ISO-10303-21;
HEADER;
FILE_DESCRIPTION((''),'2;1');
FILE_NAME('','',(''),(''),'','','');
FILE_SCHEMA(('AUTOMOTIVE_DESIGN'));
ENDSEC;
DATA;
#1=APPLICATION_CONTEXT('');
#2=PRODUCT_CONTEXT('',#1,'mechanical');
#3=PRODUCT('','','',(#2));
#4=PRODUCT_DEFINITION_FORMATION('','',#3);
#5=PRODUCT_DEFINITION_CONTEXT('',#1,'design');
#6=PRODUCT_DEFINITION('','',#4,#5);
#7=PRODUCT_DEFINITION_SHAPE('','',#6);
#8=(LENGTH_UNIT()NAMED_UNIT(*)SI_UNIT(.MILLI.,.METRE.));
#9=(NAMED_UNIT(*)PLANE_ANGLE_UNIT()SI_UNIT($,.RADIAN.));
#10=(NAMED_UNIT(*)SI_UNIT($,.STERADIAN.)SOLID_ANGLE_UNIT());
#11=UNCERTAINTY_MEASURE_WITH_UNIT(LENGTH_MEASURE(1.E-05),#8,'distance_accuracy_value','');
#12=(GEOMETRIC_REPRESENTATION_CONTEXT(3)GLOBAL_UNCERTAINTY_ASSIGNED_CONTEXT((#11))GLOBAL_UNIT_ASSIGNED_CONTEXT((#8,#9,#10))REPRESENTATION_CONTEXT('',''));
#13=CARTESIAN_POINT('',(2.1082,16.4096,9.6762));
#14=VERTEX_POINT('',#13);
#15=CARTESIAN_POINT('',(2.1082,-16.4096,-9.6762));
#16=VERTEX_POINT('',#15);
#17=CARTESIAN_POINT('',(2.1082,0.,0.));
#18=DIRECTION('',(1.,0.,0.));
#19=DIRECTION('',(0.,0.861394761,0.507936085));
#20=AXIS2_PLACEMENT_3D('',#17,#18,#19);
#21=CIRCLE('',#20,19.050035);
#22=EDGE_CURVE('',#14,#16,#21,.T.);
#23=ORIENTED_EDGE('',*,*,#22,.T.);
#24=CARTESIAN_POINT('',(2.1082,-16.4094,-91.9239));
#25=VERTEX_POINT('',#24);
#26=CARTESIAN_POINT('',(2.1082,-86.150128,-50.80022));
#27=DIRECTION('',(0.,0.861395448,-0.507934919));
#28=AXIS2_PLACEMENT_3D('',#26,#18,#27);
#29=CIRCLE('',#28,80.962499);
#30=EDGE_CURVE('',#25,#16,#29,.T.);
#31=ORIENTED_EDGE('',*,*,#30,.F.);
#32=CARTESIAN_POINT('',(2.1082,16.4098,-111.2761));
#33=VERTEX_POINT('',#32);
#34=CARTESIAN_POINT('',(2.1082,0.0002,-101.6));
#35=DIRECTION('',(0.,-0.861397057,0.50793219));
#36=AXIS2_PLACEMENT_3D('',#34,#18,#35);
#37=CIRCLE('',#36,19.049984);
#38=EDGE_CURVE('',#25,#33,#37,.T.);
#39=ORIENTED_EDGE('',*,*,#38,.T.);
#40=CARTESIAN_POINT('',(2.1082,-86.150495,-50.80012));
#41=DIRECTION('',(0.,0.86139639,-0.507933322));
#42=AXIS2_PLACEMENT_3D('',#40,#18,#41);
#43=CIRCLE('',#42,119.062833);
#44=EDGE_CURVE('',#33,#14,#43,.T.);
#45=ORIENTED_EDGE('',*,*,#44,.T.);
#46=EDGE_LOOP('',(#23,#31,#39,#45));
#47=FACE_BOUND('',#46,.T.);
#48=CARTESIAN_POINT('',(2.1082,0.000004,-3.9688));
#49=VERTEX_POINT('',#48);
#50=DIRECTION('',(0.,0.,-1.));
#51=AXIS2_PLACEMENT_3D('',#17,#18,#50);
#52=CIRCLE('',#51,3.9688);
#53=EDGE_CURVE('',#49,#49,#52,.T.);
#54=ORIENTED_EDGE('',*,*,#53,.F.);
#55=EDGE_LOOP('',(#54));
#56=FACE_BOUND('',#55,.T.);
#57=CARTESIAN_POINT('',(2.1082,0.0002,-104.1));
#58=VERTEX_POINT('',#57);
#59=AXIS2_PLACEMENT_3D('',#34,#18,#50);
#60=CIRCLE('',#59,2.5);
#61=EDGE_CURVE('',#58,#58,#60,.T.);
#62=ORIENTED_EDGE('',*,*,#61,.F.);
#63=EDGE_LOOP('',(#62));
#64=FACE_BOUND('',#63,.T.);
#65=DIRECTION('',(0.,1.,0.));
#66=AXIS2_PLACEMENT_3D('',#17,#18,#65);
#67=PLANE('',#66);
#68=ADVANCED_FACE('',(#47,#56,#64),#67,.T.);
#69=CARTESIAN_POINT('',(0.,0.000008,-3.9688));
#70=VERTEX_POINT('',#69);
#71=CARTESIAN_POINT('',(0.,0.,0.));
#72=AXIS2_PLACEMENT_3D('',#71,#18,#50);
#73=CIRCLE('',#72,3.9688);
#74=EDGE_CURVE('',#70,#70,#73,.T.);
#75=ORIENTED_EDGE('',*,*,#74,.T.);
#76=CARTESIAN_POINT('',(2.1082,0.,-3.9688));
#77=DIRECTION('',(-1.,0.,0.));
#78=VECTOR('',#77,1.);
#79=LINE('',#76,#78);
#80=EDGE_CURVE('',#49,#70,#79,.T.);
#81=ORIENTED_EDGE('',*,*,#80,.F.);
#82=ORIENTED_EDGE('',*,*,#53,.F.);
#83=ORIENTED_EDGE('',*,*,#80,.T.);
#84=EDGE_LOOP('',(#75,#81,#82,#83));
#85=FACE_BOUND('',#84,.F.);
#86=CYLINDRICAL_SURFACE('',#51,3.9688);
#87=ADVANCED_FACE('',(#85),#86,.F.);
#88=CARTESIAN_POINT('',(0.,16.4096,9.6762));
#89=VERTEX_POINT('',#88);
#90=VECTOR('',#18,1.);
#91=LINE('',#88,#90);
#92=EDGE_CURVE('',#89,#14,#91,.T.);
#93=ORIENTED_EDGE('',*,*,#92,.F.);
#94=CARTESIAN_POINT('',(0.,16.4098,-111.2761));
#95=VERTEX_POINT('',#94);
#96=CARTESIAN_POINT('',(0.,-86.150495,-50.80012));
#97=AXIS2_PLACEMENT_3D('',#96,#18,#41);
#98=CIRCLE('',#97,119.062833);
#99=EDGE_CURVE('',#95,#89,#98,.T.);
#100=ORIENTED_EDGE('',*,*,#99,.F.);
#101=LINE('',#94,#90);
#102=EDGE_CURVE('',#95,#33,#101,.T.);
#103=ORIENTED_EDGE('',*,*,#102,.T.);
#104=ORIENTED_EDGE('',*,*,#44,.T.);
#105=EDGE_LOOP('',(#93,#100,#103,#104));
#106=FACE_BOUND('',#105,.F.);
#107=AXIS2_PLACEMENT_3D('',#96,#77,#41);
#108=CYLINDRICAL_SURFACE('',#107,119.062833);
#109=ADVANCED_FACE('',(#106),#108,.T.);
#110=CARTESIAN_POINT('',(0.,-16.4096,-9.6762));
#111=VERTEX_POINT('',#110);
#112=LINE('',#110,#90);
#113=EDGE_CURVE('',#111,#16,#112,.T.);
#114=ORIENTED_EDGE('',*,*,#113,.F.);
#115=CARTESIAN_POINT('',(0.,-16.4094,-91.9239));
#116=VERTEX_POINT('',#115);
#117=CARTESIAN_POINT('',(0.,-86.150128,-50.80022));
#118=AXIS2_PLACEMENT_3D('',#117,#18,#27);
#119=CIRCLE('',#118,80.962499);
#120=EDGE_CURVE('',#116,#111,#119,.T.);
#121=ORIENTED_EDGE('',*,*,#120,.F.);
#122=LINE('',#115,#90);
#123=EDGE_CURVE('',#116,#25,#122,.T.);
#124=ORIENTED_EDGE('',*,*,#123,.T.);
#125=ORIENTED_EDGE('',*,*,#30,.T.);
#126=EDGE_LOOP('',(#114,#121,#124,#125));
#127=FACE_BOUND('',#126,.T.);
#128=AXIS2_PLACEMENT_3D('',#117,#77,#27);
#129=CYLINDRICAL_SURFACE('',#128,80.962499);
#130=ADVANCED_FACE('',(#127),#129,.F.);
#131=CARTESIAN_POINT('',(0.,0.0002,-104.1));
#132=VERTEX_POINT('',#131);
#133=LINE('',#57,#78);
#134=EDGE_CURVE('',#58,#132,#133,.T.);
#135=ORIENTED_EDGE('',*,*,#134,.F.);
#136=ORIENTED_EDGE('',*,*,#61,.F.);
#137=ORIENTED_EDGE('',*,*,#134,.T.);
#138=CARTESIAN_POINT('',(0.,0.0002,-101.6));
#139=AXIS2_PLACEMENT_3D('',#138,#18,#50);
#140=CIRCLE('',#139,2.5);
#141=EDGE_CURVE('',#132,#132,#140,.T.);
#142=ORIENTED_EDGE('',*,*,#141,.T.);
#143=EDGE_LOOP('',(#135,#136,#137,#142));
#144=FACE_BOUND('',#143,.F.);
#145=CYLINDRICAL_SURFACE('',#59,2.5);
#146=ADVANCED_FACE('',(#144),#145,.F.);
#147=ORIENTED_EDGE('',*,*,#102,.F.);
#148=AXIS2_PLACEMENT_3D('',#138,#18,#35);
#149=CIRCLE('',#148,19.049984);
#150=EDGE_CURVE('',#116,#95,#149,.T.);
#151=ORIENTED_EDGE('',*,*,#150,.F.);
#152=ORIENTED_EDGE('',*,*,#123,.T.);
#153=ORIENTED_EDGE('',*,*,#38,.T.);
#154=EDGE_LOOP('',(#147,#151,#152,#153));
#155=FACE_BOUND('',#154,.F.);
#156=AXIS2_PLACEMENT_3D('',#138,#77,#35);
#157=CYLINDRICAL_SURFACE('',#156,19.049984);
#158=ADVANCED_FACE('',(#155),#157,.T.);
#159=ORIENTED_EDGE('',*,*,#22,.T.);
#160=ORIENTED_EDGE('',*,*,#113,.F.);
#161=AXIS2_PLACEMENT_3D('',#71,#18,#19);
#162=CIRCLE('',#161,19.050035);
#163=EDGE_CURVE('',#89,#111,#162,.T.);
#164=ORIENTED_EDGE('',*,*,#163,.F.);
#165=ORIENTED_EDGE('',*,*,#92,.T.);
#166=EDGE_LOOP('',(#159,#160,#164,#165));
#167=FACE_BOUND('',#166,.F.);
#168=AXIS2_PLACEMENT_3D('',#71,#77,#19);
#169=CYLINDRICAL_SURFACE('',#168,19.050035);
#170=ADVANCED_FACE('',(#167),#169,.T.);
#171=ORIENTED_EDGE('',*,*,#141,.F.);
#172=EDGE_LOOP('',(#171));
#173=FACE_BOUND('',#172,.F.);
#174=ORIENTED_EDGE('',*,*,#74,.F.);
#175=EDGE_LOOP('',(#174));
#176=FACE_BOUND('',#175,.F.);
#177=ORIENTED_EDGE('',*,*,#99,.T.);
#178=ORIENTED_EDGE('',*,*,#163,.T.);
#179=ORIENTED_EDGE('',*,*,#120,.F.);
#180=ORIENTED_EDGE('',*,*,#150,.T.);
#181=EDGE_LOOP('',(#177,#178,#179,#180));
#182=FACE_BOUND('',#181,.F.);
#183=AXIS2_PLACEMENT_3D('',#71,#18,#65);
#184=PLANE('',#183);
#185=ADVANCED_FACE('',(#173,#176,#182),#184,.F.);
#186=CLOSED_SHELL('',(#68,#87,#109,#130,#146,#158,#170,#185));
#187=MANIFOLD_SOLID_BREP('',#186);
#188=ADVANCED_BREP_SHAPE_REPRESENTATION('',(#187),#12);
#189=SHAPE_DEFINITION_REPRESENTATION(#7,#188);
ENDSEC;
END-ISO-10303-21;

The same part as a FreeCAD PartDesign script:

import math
import FreeCAD as App
import Part
import Sketcher
from FreeCAD import Vector
Q = App.Units.Quantity

doc = App.newDocument("Part")
body = doc.addObject("PartDesign::Body", "Body")

# Sketch on YZ plane
sketch1 = body.newObject("Sketcher::SketchObject", "Sketch")
sketch1.AttachmentSupport = (doc.getObject("YZ_Plane"), [""])
sketch1.MapMode = "FlatFace"
sketch1.addGeometry([
    Part.ArcOfCircle(Part.Circle(Vector(0, -102, 0), Vector(0, 0, 1), 19), math.radians(149), math.radians(329)),
    Part.ArcOfCircle(Part.Circle(Vector(-86, -51, 0), Vector(0, 0, 1), 119), math.radians(-31), math.radians(31)),
    Part.ArcOfCircle(Part.Circle(Vector(0, 0, 0), Vector(0, 0, 1), 19), math.radians(31), math.radians(211)),
    Part.ArcOfCircle(Part.Circle(Vector(-86, -51, 0), Vector(0, 0, 1), 81), math.radians(-31), math.radians(31)),
], False)
sketch1.addConstraint([
    Sketcher.Constraint("Tangent", 0, 2, 1, 1),
    Sketcher.Constraint("Tangent", 1, 2, 2, 1),
    Sketcher.Constraint("Tangent", 2, 2, 3, 2),
    Sketcher.Constraint("Tangent", 3, 1, 0, 1),
    Sketcher.Constraint("Coincident", 2, 3, -1, 1),
    Sketcher.Constraint("Coincident", 3, 3, 1, 3),
    Sketcher.Constraint("Vertical", 2, 2, 3, 1),
    Sketcher.Constraint("Radius", 0, Q("0.75 in")),
    Sketcher.Constraint("DistanceY", 0, 3, -1, 1, Q("4 in")),
    Sketcher.Constraint("Radius", 1, Q("4.6875 in")),
])
pad1 = body.newObject("PartDesign::Pad", "Pad")
pad1.Profile = sketch1
pad1.Length = Q("0.083 in")

# Sketch on YZ plane
sketch2 = body.newObject("Sketcher::SketchObject", "Sketch001")
sketch2.AttachmentSupport = (doc.getObject("YZ_Plane"), [""])
sketch2.MapMode = "FlatFace"
sketch2.AttachmentOffset = App.Placement(Vector(0, 0, 0.083 * 25.4), App.Rotation())
sketch2.addGeometry([
    Part.Circle(Vector(0, 0, 0), Vector(0, 0, 1), 4),
    Part.Circle(Vector(0, -101.6, 0), Vector(0, 0, 1), 2.5),
], False)
sketch2.addConstraint([
    Sketcher.Constraint("Coincident", 0, 3, -1, 1),
    Sketcher.Constraint("Diameter", 0, Q("0.3125 in")),
    Sketcher.Constraint("Diameter", 1, Q("5 mm")),
    Sketcher.Constraint("DistanceX", -1, 1, 1, 3, Q("0 in")),
    Sketcher.Constraint("DistanceY", 1, 3, -1, 1, Q("4 in")),
])
pocket1 = body.newObject("PartDesign::Pocket", "Pocket")
pocket1.Profile = sketch2
pocket1.Type = "ThroughAll"

doc.recompute()
